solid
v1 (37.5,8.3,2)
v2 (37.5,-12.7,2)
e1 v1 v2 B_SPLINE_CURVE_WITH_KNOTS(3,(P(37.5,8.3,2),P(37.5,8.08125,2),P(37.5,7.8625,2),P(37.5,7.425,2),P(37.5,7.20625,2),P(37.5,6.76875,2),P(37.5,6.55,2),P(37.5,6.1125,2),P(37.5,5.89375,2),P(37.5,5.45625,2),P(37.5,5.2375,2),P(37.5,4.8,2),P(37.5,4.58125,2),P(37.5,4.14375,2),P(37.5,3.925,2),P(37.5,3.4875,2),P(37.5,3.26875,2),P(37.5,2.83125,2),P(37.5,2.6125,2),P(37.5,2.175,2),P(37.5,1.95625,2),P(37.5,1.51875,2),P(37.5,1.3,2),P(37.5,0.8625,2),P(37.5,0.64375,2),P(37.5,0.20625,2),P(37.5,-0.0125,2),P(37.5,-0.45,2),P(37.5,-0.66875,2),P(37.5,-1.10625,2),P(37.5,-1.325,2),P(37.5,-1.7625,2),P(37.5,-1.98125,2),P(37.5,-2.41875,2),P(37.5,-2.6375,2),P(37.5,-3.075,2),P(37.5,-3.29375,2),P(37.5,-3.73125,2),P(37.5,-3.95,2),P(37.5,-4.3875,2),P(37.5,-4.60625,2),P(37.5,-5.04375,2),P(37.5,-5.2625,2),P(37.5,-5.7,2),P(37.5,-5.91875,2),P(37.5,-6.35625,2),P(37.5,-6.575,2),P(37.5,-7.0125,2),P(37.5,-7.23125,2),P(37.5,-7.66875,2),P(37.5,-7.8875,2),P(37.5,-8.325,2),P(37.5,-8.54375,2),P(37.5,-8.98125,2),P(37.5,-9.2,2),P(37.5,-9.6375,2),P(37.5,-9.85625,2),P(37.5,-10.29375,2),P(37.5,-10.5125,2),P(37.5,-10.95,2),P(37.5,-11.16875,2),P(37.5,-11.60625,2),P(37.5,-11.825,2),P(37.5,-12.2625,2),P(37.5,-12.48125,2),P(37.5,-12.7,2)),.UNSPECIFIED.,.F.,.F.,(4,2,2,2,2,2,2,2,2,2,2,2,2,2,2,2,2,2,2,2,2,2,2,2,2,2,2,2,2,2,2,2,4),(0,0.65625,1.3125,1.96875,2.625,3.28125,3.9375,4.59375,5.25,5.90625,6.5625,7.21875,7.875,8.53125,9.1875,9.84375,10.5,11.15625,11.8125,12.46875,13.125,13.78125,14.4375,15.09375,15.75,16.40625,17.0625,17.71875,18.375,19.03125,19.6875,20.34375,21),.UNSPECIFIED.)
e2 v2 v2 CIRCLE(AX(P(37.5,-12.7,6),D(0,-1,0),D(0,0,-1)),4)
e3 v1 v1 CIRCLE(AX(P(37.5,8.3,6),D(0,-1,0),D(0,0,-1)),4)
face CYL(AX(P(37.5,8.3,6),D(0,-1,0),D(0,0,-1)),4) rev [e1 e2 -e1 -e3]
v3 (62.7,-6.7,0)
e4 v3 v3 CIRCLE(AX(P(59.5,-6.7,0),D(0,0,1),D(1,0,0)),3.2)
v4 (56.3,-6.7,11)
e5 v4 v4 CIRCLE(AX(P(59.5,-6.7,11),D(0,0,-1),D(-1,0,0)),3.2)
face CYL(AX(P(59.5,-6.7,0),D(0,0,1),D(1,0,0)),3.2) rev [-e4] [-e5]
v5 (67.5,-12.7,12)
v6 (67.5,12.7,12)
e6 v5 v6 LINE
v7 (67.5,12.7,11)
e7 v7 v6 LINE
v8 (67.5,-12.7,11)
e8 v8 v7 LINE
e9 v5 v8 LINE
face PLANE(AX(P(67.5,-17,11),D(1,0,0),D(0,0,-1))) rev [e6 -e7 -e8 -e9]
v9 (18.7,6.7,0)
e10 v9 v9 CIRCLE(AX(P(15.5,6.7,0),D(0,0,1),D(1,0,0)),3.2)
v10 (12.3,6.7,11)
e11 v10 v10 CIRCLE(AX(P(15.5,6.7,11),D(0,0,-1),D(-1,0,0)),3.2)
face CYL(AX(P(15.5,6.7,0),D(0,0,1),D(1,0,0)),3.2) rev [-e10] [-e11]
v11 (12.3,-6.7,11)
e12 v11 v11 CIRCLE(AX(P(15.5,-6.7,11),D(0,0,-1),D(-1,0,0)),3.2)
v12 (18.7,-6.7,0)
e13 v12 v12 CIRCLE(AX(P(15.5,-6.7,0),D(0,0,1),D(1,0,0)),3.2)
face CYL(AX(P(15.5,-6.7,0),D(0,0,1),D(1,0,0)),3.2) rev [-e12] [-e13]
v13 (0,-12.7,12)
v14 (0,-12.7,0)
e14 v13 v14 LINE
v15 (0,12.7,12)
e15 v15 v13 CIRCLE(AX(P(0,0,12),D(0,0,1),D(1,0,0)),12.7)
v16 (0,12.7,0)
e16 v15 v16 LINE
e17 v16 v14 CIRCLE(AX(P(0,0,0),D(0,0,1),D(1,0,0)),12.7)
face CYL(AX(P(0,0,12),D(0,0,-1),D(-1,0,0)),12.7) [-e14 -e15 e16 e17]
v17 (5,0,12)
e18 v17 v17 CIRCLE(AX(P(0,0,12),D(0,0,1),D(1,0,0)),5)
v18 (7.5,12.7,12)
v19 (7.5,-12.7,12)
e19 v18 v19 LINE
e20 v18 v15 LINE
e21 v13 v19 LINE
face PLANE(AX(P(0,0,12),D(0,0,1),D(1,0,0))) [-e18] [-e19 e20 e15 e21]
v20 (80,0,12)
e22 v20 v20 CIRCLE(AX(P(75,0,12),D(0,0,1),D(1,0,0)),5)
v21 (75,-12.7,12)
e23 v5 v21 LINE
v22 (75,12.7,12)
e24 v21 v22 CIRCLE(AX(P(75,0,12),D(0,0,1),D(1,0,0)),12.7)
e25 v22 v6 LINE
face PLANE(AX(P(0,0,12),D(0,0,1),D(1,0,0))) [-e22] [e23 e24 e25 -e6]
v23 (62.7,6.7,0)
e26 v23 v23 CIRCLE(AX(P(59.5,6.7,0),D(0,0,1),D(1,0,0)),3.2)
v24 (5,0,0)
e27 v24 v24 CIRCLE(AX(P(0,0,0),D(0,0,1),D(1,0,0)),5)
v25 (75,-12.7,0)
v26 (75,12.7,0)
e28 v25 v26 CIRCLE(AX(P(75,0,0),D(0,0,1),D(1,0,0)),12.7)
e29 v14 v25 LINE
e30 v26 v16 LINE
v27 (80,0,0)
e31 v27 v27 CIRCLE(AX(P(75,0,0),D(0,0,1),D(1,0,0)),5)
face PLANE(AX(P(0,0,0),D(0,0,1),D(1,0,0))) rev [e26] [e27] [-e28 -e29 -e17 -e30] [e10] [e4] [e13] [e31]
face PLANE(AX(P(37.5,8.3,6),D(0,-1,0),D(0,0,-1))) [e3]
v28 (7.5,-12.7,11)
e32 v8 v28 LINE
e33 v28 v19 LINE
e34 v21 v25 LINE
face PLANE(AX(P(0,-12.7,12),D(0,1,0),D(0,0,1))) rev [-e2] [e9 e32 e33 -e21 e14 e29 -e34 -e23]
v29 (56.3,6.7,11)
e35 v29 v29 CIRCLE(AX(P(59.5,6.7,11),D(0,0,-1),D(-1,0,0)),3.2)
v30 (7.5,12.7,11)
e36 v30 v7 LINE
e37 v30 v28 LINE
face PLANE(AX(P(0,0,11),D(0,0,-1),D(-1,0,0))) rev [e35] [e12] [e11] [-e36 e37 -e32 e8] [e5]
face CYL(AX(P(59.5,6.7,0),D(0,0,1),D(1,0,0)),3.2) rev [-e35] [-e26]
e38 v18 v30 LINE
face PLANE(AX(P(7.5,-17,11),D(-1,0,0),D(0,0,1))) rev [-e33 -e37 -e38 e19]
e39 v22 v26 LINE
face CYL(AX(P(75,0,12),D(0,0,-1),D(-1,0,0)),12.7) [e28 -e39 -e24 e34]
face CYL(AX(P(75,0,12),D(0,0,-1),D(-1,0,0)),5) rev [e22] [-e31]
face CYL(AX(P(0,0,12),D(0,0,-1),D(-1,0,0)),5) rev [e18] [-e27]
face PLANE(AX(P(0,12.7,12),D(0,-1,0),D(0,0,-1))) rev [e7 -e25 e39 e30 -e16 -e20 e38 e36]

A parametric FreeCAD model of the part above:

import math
import FreeCAD as App
import Part
import Sketcher

V = App.Vector


def add_polygon(sketch, points):
    """Adds a closed chain of lines whose ends are joined by coincident constraints."""
    first, n = sketch.GeometryCount, len(points)
    for a, b in zip(points, points[1:] + points[:1]):
        sketch.addGeometry(Part.LineSegment(App.Vector(*a, 0), App.Vector(*b, 0)), False)
    for i in range(n):
        sketch.addConstraint(Sketcher.Constraint("Coincident", first + i, 2, first + (i + 1) % n, 1))

doc = App.newDocument("Part")
body = doc.addObject("PartDesign::Body", "Body")

# Sketch on XY plane
sketch1 = doc.addObject("Sketcher::SketchObject", "Sketch")
body.addObject(sketch1)
sketch1.AttachmentSupport = (doc.XY_Plane, [""])
sketch1.MapMode = "FlatFace"
sketch1.addGeometry([
    Part.LineSegment(V(75, 13, 0), V(0, 13, 0)),  # 0
    Part.ArcOfCircle(Part.Circle(V(0, 0, 0), V(0, 0, 1), 13), math.radians(90), math.radians(270)),  # 1
    Part.LineSegment(V(0, -13, 0), V(75, -13, 0)),  # 2
    Part.ArcOfCircle(Part.Circle(V(75, 0, 0), V(0, 0, 1), 13), math.radians(-90), math.radians(90)),  # 3
    Part.Circle(V(75, 0, 0), V(0, 0, 1), 5),  # 4
    Part.Circle(V(0, 0, 0), V(0, 0, 1), 5),  # 5
], False)
sketch1.addConstraint([
    Sketcher.Constraint("Tangent", 0, 2, 1, 1),
    Sketcher.Constraint("Tangent", 1, 2, 2, 1),
    Sketcher.Constraint("Tangent", 2, 2, 3, 1),
    Sketcher.Constraint("Tangent", 3, 2, 0, 1),
    Sketcher.Constraint("Horizontal", 0),
    Sketcher.Constraint("Horizontal", 2),
    Sketcher.Constraint("Coincident", 1, 3, -1, 1),
    Sketcher.Constraint("Coincident", 5, 3, -1, 1),
    Sketcher.Constraint("Coincident", 4, 3, 3, 3),
    Sketcher.Constraint("Equal", 4, 5),
    Sketcher.Constraint("Diameter", 4, 10.0),
    Sketcher.Constraint("Radius", 1, 12.7),
    Sketcher.Constraint("DistanceX", 0, 2, 0, 1, 75.0),
])
pad1 = doc.addObject("PartDesign::Pad", "Pad")
body.addObject(pad1)
pad1.Profile = sketch1
pad1.Length = 12

# Sketch on XZ plane
sketch2 = doc.addObject("Sketcher::SketchObject", "Sketch001")
body.addObject(sketch2)
sketch2.AttachmentSupport = (doc.XZ_Plane, [""])
sketch2.MapMode = "FlatFace"
sketch2.AttachmentOffset = App.Placement(V(0, 0, 12.7), App.Rotation())
sketch2.addGeometry(Part.Circle(V(37.5, 6, 0), V(0, 0, 1), 4), False)
sketch2.addConstraint([
    Sketcher.Constraint("Diameter", 0, 8.0),
    Sketcher.Constraint("DistanceY", -1, 1, 0, 3, 6.0),
    Sketcher.Constraint("DistanceX", -1, 1, 0, 3, 37.5),
])
pocket1 = doc.addObject("PartDesign::Pocket", "Pocket")
body.addObject(pocket1)
pocket1.Profile = sketch2
pocket1.Length = 21

# Sketch on XY plane
sketch3 = doc.addObject("Sketcher::SketchObject", "Sketch002")
body.addObject(sketch3)
sketch3.AttachmentSupport = (doc.XY_Plane, [""])
sketch3.MapMode = "FlatFace"
sketch3.AttachmentOffset = App.Placement(V(0, 0, 12), App.Rotation())
add_polygon(sketch3, [(8, 17), (8, -17), (68, -17), (68, 17)])  # lines 0-3
sketch3.addConstraint([
    Sketcher.Constraint("Vertical", 0),
    Sketcher.Constraint("Horizontal", 1),
    Sketcher.Constraint("Vertical", 2),
    Sketcher.Constraint("Horizontal", 3),
    Sketcher.Constraint("DistanceX", 1, 1, 1, 2, 60.0),
    Sketcher.Constraint("DistanceY", 0, 2, 0, 1, 34.0),
    Sketcher.Constraint("DistanceY", 0, 2, -1, 1, 17.0),
    Sketcher.Constraint("DistanceX", -1, 1, 0, 2, 7.5),
])
pocket2 = doc.addObject("PartDesign::Pocket", "Pocket001")
body.addObject(pocket2)
pocket2.Profile = sketch3
pocket2.Length = 1

# Sketch on XY plane
sketch4 = doc.addObject("Sketcher::SketchObject", "Sketch003")
body.addObject(sketch4)
sketch4.AttachmentSupport = (doc.XY_Plane, [""])
sketch4.MapMode = "FlatFace"
sketch4.AttachmentOffset = App.Placement(V(0, 0, 12), App.Rotation())
sketch4.addGeometry([
    Part.Circle(V(59.5, -6.7, 0), V(0, 0, 1), 3.2),
    Part.Circle(V(59.5, 6.7, 0), V(0, 0, 1), 3.2),
    Part.Circle(V(15.5, 6.7, 0), V(0, 0, 1), 3.2),
    Part.Circle(V(15.5, -6.7, 0), V(0, 0, 1), 3.2),
], False)
sketch4.addConstraint([
    Sketcher.Constraint("Equal", 0, 1),
    Sketcher.Constraint("Equal", 1, 2),
    Sketcher.Constraint("Equal", 2, 3),
    Sketcher.Constraint("Symmetric", 0, 3, 1, 3, -1),
    Sketcher.Constraint("Symmetric", 2, 3, 3, 3, -1),
    Sketcher.Constraint("Horizontal", 1, 3, 2, 3),
    Sketcher.Constraint("Diameter", 0, 6.4),
    Sketcher.Constraint("DistanceX", 2, 3, 1, 3, 44.0),
    Sketcher.Constraint("DistanceX", -1, 1, 0, 3, 59.5),
    Sketcher.Constraint("DistanceY", 0, 3, -1, 1, 6.7),
])
pocket3 = doc.addObject("PartDesign::Pocket", "Pocket002")
body.addObject(pocket3)
pocket3.Profile = sketch4
pocket3.Type = "ThroughAll"

doc.recompute()
